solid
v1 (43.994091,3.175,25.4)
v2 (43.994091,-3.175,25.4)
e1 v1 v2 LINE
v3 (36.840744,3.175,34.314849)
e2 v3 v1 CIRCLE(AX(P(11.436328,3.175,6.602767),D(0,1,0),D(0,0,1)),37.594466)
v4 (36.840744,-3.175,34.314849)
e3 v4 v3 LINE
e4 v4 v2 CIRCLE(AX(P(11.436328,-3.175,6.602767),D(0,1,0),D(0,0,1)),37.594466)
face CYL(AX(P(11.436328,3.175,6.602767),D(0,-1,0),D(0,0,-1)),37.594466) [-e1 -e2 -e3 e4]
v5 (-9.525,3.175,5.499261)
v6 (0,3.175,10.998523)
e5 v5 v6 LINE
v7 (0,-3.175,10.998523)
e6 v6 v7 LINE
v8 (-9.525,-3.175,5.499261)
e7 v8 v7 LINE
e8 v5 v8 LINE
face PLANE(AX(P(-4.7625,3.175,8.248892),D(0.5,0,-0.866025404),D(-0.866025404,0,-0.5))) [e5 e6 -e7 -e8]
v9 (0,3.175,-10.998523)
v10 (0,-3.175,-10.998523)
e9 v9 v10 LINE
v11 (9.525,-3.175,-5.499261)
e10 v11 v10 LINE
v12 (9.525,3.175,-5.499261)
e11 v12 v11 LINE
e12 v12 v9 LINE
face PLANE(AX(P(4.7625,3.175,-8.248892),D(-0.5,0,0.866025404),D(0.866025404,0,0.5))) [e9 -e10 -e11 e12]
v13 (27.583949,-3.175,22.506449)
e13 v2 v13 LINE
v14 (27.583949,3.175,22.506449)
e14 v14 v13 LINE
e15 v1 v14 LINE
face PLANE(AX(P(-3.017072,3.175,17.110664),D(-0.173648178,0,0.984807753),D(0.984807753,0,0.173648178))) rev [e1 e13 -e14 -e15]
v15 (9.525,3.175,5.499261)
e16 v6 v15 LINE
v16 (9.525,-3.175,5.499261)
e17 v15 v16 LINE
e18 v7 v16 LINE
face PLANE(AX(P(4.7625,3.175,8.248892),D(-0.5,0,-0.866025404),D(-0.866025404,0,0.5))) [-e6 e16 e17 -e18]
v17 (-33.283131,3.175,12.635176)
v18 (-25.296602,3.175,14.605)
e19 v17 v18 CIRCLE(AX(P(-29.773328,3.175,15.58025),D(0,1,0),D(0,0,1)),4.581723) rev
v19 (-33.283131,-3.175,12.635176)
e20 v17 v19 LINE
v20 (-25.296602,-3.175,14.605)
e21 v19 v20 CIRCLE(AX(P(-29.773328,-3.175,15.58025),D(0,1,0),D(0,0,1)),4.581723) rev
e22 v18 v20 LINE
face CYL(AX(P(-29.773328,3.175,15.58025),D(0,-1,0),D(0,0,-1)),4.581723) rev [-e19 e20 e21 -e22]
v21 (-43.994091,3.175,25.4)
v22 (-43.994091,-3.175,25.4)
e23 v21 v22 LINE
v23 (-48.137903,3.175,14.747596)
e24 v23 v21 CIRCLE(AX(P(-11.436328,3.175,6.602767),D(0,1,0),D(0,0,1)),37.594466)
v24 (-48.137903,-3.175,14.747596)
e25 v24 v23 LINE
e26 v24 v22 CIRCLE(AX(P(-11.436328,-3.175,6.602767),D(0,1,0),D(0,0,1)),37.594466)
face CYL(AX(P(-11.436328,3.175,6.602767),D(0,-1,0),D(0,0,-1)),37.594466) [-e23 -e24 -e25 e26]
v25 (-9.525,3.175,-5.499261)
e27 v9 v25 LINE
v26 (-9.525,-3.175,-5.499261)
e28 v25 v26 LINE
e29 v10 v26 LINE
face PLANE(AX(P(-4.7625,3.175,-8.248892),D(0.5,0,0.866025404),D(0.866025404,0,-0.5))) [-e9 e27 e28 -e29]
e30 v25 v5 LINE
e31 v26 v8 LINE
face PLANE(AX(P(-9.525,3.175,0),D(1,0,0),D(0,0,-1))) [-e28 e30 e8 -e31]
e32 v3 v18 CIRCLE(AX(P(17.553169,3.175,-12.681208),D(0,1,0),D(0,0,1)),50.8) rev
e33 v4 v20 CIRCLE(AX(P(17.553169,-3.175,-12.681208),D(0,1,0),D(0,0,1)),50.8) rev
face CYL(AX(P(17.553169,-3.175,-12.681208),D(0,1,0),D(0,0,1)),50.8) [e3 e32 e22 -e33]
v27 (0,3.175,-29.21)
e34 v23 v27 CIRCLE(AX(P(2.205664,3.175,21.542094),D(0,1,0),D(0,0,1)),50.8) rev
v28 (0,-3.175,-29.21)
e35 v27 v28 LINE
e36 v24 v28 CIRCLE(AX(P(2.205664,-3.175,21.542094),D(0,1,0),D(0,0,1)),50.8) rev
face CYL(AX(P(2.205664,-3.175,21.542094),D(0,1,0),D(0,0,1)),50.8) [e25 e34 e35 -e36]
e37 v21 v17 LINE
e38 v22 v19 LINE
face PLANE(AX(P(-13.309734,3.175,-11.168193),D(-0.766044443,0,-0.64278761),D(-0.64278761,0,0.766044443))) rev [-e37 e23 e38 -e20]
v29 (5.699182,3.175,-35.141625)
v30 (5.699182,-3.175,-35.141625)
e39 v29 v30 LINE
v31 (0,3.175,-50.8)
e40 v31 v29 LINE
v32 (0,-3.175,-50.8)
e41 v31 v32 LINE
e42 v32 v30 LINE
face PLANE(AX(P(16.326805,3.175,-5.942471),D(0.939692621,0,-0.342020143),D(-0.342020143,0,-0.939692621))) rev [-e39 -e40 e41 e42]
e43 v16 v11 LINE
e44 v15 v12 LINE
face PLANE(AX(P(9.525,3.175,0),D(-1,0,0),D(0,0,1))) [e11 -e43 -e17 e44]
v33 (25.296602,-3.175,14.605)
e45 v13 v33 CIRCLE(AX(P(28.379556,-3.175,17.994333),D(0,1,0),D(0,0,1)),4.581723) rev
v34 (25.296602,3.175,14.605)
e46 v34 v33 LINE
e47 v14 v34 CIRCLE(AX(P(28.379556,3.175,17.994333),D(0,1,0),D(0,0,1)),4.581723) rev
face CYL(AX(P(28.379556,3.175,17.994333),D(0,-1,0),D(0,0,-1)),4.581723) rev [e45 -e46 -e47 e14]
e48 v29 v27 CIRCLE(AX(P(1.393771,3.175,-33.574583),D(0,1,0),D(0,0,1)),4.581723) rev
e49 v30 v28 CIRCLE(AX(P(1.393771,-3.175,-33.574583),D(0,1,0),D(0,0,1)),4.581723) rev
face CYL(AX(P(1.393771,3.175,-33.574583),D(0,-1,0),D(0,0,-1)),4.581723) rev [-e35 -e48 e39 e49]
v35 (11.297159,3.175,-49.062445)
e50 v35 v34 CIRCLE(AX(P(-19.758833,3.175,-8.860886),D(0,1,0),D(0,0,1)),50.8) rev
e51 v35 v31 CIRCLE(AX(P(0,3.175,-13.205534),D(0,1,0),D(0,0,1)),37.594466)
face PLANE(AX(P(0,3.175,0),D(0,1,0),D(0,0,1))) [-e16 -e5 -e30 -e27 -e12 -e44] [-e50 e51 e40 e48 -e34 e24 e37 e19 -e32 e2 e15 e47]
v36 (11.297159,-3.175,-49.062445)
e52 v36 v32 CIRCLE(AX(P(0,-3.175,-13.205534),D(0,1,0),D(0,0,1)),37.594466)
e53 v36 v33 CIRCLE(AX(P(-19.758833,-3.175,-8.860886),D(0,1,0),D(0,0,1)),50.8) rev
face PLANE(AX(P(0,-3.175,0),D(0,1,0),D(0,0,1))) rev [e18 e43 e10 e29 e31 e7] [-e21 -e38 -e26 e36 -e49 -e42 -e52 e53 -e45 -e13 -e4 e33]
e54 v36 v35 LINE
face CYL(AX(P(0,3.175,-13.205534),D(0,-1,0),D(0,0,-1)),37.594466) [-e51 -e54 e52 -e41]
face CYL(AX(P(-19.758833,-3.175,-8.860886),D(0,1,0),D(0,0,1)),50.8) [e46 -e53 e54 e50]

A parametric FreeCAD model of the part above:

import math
import FreeCAD as App
import Part
import Sketcher
from FreeCAD import Vector
Q = App.Units.Quantity

doc = App.newDocument("Part")
body = doc.addObject("PartDesign::Body", "Body")

# Sketch on XZ plane
sketch1 = body.newObject("Sketcher::SketchObject", "Sketch")
sketch1.AttachmentSupport = (doc.getObject("XZ_Plane"), [""])
sketch1.MapMode = "FlatFace"
sketch1.addGeometry([
    Part.LineSegment(Vector(0, -50.8, 0), Vector(5.7, -35.1, 0)),  # 0
    Part.ArcOfCircle(Part.Circle(Vector(1.4, -33.6, 0), Vector(0, 0, 1), 4.6), math.radians(-20), math.radians(108)),  # 1
    Part.ArcOfCircle(Part.Circle(Vector(-11.4, 6.6, 0), Vector(0, 0, 1), 37.6), math.radians(150), math.radians(288)),  # 2
    Part.LineSegment(Vector(-44, 25.4, 0), Vector(-33.3, 12.6, 0)),  # 3
    Part.ArcOfCircle(Part.Circle(Vector(-29.8, 15.6, 0), Vector(0, 0, 1), 4.6), math.radians(-140), math.radians(-12)),  # 4
    Part.ArcOfCircle(Part.Circle(Vector(11.4, 6.6, 0), Vector(0, 0, 1), 37.6), math.radians(30), math.radians(168)),  # 5
    Part.LineSegment(Vector(44, 25.4, 0), Vector(27.6, 22.5, 0)),  # 6
    Part.ArcOfCircle(Part.Circle(Vector(28.4, 18, 0), Vector(0, 0, 1), 4.6), math.radians(100), math.radians(228)),  # 7
    Part.ArcOfCircle(Part.Circle(Vector(0, -13.2, 0), Vector(0, 0, 1), 37.6), math.radians(-90), math.radians(48)),  # 8
    Part.LineSegment(Vector(-9.5, -5.5, 0), Vector(0, -11, 0)),  # 9
    Part.LineSegment(Vector(0, -11, 0), Vector(9.5, -5.5, 0)),  # 10
    Part.LineSegment(Vector(9.5, -5.5, 0), Vector(9.5, 5.5, 0)),  # 11
    Part.LineSegment(Vector(9.5, 5.5, 0), Vector(0, 11, 0)),  # 12
    Part.LineSegment(Vector(0, 11, 0), Vector(-9.5, 5.5, 0)),  # 13
    Part.LineSegment(Vector(-9.5, 5.5, 0), Vector(-9.5, -5.5, 0)),  # 14
], False)
sketch1.addConstraint([
    Sketcher.Constraint("Tangent", 0, 2, 1, 1),
    Sketcher.Constraint("Tangent", 1, 2, 2, 2),
    Sketcher.Constraint("Coincident", 2, 1, 3, 1),
    Sketcher.Constraint("Tangent", 3, 2, 4, 1),
    Sketcher.Constraint("Tangent", 4, 2, 5, 2),
    Sketcher.Constraint("Coincident", 5, 1, 6, 1),
    Sketcher.Constraint("Tangent", 6, 2, 7, 1),
    Sketcher.Constraint("Tangent", 7, 2, 8, 2),
    Sketcher.Constraint("Coincident", 8, 1, 0, 1),
    Sketcher.Constraint("Coincident", 9, 2, 10, 1),
    Sketcher.Constraint("Coincident", 10, 2, 11, 1),
    Sketcher.Constraint("Coincident", 11, 2, 12, 1),
    Sketcher.Constraint("Coincident", 12, 2, 13, 1),
    Sketcher.Constraint("Coincident", 13, 2, 14, 1),
    Sketcher.Constraint("Coincident", 14, 2, 9, 1),
    Sketcher.Constraint("Vertical", 11),
    Sketcher.Constraint("Vertical", 14),
    Sketcher.Constraint("Equal", 1, 4),
    Sketcher.Constraint("Equal", 2, 5),
    Sketcher.Constraint("Equal", 4, 7),
    Sketcher.Constraint("Equal", 5, 8),
    Sketcher.Constraint("Symmetric", 9, 2, 12, 2, -1, 1),
    Sketcher.Constraint("Symmetric", 10, 2, 13, 2, -1, 1),
    Sketcher.Constraint("Symmetric", 2, 3, 5, 3, -2),
    Sketcher.Constraint("Symmetric", 4, 2, 7, 2, -2),
    Sketcher.Constraint("PointOnObject", 8, 3, -2),
    Sketcher.Constraint("PointOnObject", 1, 2, -2),
    Sketcher.Constraint("PointOnObject", 8, 1, -2),
    Sketcher.Constraint("PointOnObject", 9, 2, -2),
    Sketcher.Constraint("Parallel", 9, 12),
    Sketcher.Constraint("Horizontal", 2, 1, 5, 1),
    Sketcher.Constraint("Horizontal", 11, 2, 13, 2),
    Sketcher.Constraint("Equal", 0, 3),
    Sketcher.Constraint("Equal", 3, 6),
    Sketcher.Constraint("DistanceY", -1, 1, 2, 1, Q("1 in")),
    Sketcher.Constraint("DistanceY", 8, 1, -1, 1, Q("2 in")),
    Sketcher.Constraint("Angle", 0, Q("70 deg")),
    Sketcher.Constraint("Angle", 9, Q("-30 deg")),
    Sketcher.Constraint("DistanceY", 1, 2, -1, 1, Q("1.15 in")),
    Sketcher.Constraint("DistanceX", 13, 2, 11, 2, Q("0.75 in")),
    Sketcher.Constraint("DistanceY", 11, 1, 11, 2, Q("10.998523 mm")),
])
pad1 = body.newObject("PartDesign::Pad", "Pad")
pad1.Profile = sketch1
pad1.Length = Q("0.25 in")
pad1.Midplane = True

# Sketch on XZ plane
sketch2 = body.newObject("Sketcher::SketchObject", "Sketch001")
sketch2.AttachmentSupport = (doc.getObject("XZ_Plane"), [""])
sketch2.MapMode = "FlatFace"
sketch2.AttachmentOffset = App.Placement(Vector(0, 0, -0.125 * 25.4), App.Rotation())
sketch2.addGeometry([
    Part.ArcOfCircle(Part.Circle(Vector(-11, 7, 0), Vector(0, 0, 1), 38), math.radians(167), math.radians(288)),  # 0
    Part.ArcOfCircle(Part.Circle(Vector(2, 22, 0), Vector(0, 0, 1), 51), math.radians(-172), math.radians(-92)),  # 1
    Part.ArcOfCircle(Part.Circle(Vector(-20, -9, 0), Vector(0, 0, 1), 51), math.radians(-52), math.radians(28)),  # 2
    Part.ArcOfCircle(Part.Circle(Vector(0, -13, 0), Vector(0, 0, 1), 38), math.radians(-73), math.radians(48)),  # 3
    Part.ArcOfCircle(Part.Circle(Vector(11, 7, 0), Vector(0, 0, 1), 38), math.radians(47), math.radians(168)),  # 4
    Part.ArcOfCircle(Part.Circle(Vector(18, -13, 0), Vector(0, 0, 1), 51), math.radians(68), math.radians(148)),  # 5
], False)
sketch2.addConstraint([
    Sketcher.Constraint("Coincident", 0, 1, 1, 1),
    Sketcher.Constraint("Coincident", 1, 2, 0, 2),
    Sketcher.Constraint("Coincident", 2, 1, 3, 1),
    Sketcher.Constraint("Coincident", 3, 2, 2, 2),
    Sketcher.Constraint("Coincident", 4, 1, 5, 1),
    Sketcher.Constraint("Coincident", 5, 2, 4, 2),
    Sketcher.Constraint("Equal", 1, 2),
    Sketcher.Constraint("Equal", 0, 3),
    Sketcher.Constraint("Equal", 3, 4),
    Sketcher.Constraint("Equal", 2, 5),
    Sketcher.Constraint("Symmetric", 0, 3, 4, 3, -2),
    Sketcher.Constraint("Symmetric", 3, 2, 5, 2, -2),
    Sketcher.Constraint("PointOnObject", 3, 3, -2),
    Sketcher.Constraint("PointOnObject", 1, 2, -2),
    Sketcher.Constraint("Radius", 1, Q("2 in")),
    Sketcher.Constraint("DistanceY", 1, 2, -1, 1, Q("1.15 in")),
    Sketcher.Constraint("DistanceY", -1, 1, 3, 2, Q("0.575 in")),
    Sketcher.Constraint("Radius", 0, Q("37.594466 mm")),
    Sketcher.Constraint("DistanceY", 0, 1, 1, 3, Q("0.2674999 in")),
    Sketcher.Constraint("DistanceY", 3, 3, 0, 3, Q("19.808301 mm")),
    Sketcher.Constraint("DistanceX", 2, 3, 5, 3, Q("37.312001 mm")),
    Sketcher.Constraint("DistanceX", -1, 1, 5, 3, Q("17.553169 mm")),
])
pocket1 = body.newObject("PartDesign::Pocket", "Pocket")
pocket1.Profile = sketch2
pocket1.Type = "ThroughAll"
pocket1.Reversed = True

doc.recompute()
